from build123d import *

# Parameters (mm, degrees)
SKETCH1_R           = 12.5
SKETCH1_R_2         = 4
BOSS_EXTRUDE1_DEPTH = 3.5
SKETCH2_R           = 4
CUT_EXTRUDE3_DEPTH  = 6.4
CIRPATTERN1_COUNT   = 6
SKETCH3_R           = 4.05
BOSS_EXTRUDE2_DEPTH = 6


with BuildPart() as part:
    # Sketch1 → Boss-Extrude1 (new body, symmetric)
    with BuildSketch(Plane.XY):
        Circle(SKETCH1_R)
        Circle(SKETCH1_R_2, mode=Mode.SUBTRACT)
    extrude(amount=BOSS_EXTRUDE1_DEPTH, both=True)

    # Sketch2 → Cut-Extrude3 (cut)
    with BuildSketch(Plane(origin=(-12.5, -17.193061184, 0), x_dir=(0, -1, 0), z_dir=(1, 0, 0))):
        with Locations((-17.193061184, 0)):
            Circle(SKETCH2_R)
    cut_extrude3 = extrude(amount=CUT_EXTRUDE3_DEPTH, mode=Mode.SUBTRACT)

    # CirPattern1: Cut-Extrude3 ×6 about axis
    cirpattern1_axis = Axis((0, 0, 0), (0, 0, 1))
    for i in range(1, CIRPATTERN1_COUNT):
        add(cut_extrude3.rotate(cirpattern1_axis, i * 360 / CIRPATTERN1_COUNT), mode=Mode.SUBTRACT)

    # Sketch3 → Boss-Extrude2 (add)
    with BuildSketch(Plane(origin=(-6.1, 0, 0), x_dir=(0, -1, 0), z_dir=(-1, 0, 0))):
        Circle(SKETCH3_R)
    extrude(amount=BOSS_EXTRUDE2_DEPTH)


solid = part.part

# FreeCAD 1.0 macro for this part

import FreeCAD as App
import Part
import Sketcher
from FreeCAD import Vector

doc = App.newDocument("Part")
body = doc.addObject("PartDesign::Body", "Body")

# Sketch on XY plane
sketch1 = body.newObject("Sketcher::SketchObject", "Sketch")
sketch1.AttachmentSupport = (doc.getObject("XY_Plane"), [""])
sketch1.MapMode = "FlatFace"
sketch1.addGeometry(Part.Circle(Vector(0, 0, 0), Vector(0, 0, 1), 12.5), False)
sketch1.addGeometry(Part.Circle(Vector(0, 0, 0), Vector(0, 0, 1), 4), False)
sketch1.addConstraint(Sketcher.Constraint("Coincident", 0, 3, -1, 1))
sketch1.addConstraint(Sketcher.Constraint("Coincident", 1, 3, -1, 1))
sketch1.addConstraint(Sketcher.Constraint("Diameter", 0, 25.0))
sketch1.addConstraint(Sketcher.Constraint("Diameter", 1, 8.0))
pad1 = body.newObject("PartDesign::Pad", "Pad")
pad1.Profile = sketch1
pad1.Length = 7
pad1.Midplane = True

# Sketch on YZ plane
sketch2 = body.newObject("Sketcher::SketchObject", "Sketch001")
sketch2.AttachmentSupport = (doc.getObject("YZ_Plane"), [""])
sketch2.MapMode = "FlatFace"
sketch2.AttachmentOffset = App.Placement(Vector(0, 0, -12.5), App.Rotation())
sketch2.addGeometry(Part.Circle(Vector(0, 0, 0), Vector(0, 0, 1), 4), False)
sketch2.addConstraint(Sketcher.Constraint("Coincident", 0, 3, -1, 1))
sketch2.addConstraint(Sketcher.Constraint("Diameter", 0, 8.0))
pocket1 = body.newObject("PartDesign::Pocket", "Pocket")
pocket1.Profile = sketch2
pocket1.Length = 6.4
pocket1.Reversed = True
doc.recompute()

polarpattern = body.newObject("PartDesign::PolarPattern", "PolarPattern")
polarpattern.Originals = [pocket1]
polarpattern.Axis = (doc.getObject("Z_Axis"), [""])
polarpattern.Angle = 360
polarpattern.Occurrences = 6
body.Tip = polarpattern

# Sketch on YZ plane
sketch3 = body.newObject("Sketcher::SketchObject", "Sketch002")
sketch3.AttachmentSupport = (doc.getObject("YZ_Plane"), [""])
sketch3.MapMode = "FlatFace"
sketch3.AttachmentOffset = App.Placement(Vector(0, 0, -6.1), App.Rotation())
sketch3.addGeometry(Part.Circle(Vector(0, 0, 0), Vector(0, 0, 1), 4), False)
sketch3.addConstraint(Sketcher.Constraint("Coincident", 0, 3, -1, 1))
sketch3.addConstraint(Sketcher.Constraint("Diameter", 0, 8.1))
pad2 = body.newObject("PartDesign::Pad", "Pad001")
pad2.Profile = sketch3
pad2.Length = 6
pad2.Reversed = True

doc.recompute()
